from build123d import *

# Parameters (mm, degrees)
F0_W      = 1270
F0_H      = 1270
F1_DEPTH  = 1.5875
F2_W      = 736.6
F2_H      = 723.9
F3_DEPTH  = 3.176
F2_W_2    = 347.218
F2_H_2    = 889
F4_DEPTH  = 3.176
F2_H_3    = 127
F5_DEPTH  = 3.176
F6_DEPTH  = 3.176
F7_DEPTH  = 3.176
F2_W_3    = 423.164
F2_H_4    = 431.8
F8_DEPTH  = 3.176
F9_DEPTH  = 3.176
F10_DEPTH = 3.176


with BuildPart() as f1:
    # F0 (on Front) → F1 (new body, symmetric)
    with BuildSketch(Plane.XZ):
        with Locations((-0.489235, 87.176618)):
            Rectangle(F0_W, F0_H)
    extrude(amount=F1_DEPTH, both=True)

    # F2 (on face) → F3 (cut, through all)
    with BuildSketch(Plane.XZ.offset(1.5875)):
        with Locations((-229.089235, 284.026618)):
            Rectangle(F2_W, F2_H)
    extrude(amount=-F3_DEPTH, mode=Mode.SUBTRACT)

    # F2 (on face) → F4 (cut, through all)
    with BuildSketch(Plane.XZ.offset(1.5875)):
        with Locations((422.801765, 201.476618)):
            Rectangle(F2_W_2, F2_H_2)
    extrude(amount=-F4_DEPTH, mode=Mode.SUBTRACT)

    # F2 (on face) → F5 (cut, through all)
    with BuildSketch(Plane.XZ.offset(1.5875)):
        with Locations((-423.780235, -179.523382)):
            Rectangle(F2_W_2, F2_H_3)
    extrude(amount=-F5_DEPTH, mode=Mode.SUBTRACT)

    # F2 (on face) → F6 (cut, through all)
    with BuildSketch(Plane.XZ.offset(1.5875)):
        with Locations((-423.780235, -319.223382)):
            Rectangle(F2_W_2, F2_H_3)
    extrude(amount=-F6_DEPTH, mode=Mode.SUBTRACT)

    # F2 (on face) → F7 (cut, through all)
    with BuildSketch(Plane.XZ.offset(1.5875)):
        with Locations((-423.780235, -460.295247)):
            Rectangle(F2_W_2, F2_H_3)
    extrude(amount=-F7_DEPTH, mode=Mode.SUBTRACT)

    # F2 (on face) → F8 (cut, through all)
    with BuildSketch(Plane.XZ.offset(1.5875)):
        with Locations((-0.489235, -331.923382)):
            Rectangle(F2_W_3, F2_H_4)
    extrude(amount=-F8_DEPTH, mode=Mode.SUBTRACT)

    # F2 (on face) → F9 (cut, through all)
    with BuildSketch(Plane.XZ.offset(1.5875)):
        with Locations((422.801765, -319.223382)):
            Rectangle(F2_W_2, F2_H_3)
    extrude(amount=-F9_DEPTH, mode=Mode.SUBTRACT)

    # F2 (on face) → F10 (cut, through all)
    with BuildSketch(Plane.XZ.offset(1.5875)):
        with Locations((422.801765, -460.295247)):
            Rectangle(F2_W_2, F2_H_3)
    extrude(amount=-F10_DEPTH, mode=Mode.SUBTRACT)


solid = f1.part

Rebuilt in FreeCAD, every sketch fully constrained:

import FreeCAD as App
import Part
import Sketcher
Q = App.Units.Quantity


def add_polygon(sketch, points):
    """Adds a closed chain of lines whose ends are joined by coincident constraints."""
    first, n = sketch.GeometryCount, len(points)
    for a, b in zip(points, points[1:] + points[:1]):
        sketch.addGeometry(Part.LineSegment(App.Vector(*a, 0), App.Vector(*b, 0)), False)
    for i in range(n):
        sketch.addConstraint(Sketcher.Constraint("Coincident", first + i, 2, first + (i + 1) % n, 1))

doc = App.newDocument("Part")
body = doc.addObject("PartDesign::Body", "Body")

# Sketch on XZ plane
sketch1 = body.newObject("Sketcher::SketchObject", "Sketch")
sketch1.AttachmentSupport = (doc.getObject("XZ_Plane"), [""])
sketch1.MapMode = "FlatFace"
add_polygon(sketch1, [(-635.489235, 722.176618), (-635.489235, -547.823382), (634.510765, -547.823382), (634.510765, 722.176618)])  # lines 0-3
sketch1.addConstraint([
    Sketcher.Constraint("Vertical", 0),
    Sketcher.Constraint("Horizontal", 1),
    Sketcher.Constraint("Vertical", 2),
    Sketcher.Constraint("Horizontal", 3),
    Sketcher.Constraint("Equal", 3, 0),
    Sketcher.Constraint("DistanceX", 1, 1, 1, 2, Q("50 in")),
    Sketcher.Constraint("DistanceY", 0, 2, -1, 1, 547.823382),
    Sketcher.Constraint("DistanceX", 0, 2, -1, 1, 635.489235),
])
pad1 = body.newObject("PartDesign::Pad", "Pad")
pad1.Profile = sketch1
pad1.Length = Q("0.125 in")
pad1.Midplane = True

# Sketch on XZ plane
sketch2 = body.newObject("Sketcher::SketchObject", "Sketch001")
sketch2.AttachmentSupport = (doc.getObject("XZ_Plane"), [""])
sketch2.MapMode = "FlatFace"
sketch2.AttachmentOffset = App.Placement(App.Vector(0, 0, 0.0625 * 25.4), App.Rotation())
add_polygon(sketch2, [(-597.389235, 645.976618), (-597.389235, -77.923382), (139.210765, -77.923382), (139.210765, 645.976618)])  # lines 0-3
sketch2.addConstraint([
    Sketcher.Constraint("Vertical", 0),
    Sketcher.Constraint("Horizontal", 1),
    Sketcher.Constraint("Vertical", 2),
    Sketcher.Constraint("Horizontal", 3),
    Sketcher.Constraint("DistanceX", 1, 1, 1, 2, Q("29 in")),
    Sketcher.Constraint("DistanceY", 0, 2, 0, 1, Q("28.5 in")),
    Sketcher.Constraint("DistanceY", -1, 1, 2, 2, 645.976618),
    Sketcher.Constraint("DistanceX", 0, 2, -1, 1, 597.389235),
])
pocket1 = body.newObject("PartDesign::Pocket", "Pocket")
pocket1.Profile = sketch2
pocket1.Type = "ThroughAll"

# Sketch on XZ plane
sketch3 = body.newObject("Sketcher::SketchObject", "Sketch002")
sketch3.AttachmentSupport = (doc.getObject("XZ_Plane"), [""])
sketch3.MapMode = "FlatFace"
sketch3.AttachmentOffset = App.Placement(App.Vector(0, 0, 0.0625 * 25.4), App.Rotation())
add_polygon(sketch3, [(249.192765, 645.976618), (249.192765, -243.023382), (596.410765, -243.023382), (596.410765, 645.976618)])  # lines 0-3
sketch3.addConstraint([
    Sketcher.Constraint("Vertical", 0),
    Sketcher.Constraint("Horizontal", 1),
    Sketcher.Constraint("Vertical", 2),
    Sketcher.Constraint("Horizontal", 3),
    Sketcher.Constraint("DistanceY", 0, 2, 0, 1, Q("35 in")),
    Sketcher.Constraint("DistanceX", 1, 1, 1, 2, Q("13.67 in")),
    Sketcher.Constraint("DistanceY", 0, 2, -1, 1, 243.023382),
    Sketcher.Constraint("DistanceX", -1, 1, 0, 2, 249.192765),
])
pocket2 = body.newObject("PartDesign::Pocket", "Pocket001")
pocket2.Profile = sketch3
pocket2.Type = "ThroughAll"

# Sketch on XZ plane
sketch4 = body.newObject("Sketcher::SketchObject", "Sketch003")
sketch4.AttachmentSupport = (doc.getObject("XZ_Plane"), [""])
sketch4.MapMode = "FlatFace"
sketch4.AttachmentOffset = App.Placement(App.Vector(0, 0, 0.0625 * 25.4), App.Rotation())
add_polygon(sketch4, [(-597.389235, -116.023382), (-597.389235, -243.023382), (-250.171235, -243.023382), (-250.171235, -116.023382)])  # lines 0-3
sketch4.addConstraint([
    Sketcher.Constraint("Vertical", 0),
    Sketcher.Constraint("Horizontal", 1),
    Sketcher.Constraint("Vertical", 2),
    Sketcher.Constraint("Horizontal", 3),
    Sketcher.Constraint("DistanceY", 0, 2, 0, 1, Q("5 in")),
    Sketcher.Constraint("DistanceX", 1, 1, 1, 2, Q("13.67 in")),
    Sketcher.Constraint("DistanceY", 0, 2, -1, 1, 243.023382),
    Sketcher.Constraint("DistanceX", 0, 2, -1, 1, 597.389235),
])
pocket3 = body.newObject("PartDesign::Pocket", "Pocket002")
pocket3.Profile = sketch4
pocket3.Type = "ThroughAll"

# Sketch on XZ plane
sketch5 = body.newObject("Sketcher::SketchObject", "Sketch004")
sketch5.AttachmentSupport = (doc.getObject("XZ_Plane"), [""])
sketch5.MapMode = "FlatFace"
sketch5.AttachmentOffset = App.Placement(App.Vector(0, 0, 0.0625 * 25.4), App.Rotation())
add_polygon(sketch5, [(-597.389235, -255.723382), (-597.389235, -382.723382), (-250.171235, -382.723382), (-250.171235, -255.723382)])  # lines 0-3
sketch5.addConstraint([
    Sketcher.Constraint("Vertical", 0),
    Sketcher.Constraint("Horizontal", 1),
    Sketcher.Constraint("Vertical", 2),
    Sketcher.Constraint("Horizontal", 3),
    Sketcher.Constraint("DistanceY", 0, 2, 0, 1, Q("5 in")),
    Sketcher.Constraint("DistanceX", 1, 1, 1, 2, Q("13.67 in")),
    Sketcher.Constraint("DistanceY", 0, 2, -1, 1, 382.723382),
    Sketcher.Constraint("DistanceX", 0, 2, -1, 1, 597.389235),
])
pocket4 = body.newObject("PartDesign::Pocket", "Pocket003")
pocket4.Profile = sketch5
pocket4.Type = "ThroughAll"

# Sketch on XZ plane
sketch6 = body.newObject("Sketcher::SketchObject", "Sketch005")
sketch6.AttachmentSupport = (doc.getObject("XZ_Plane"), [""])
sketch6.MapMode = "FlatFace"
sketch6.AttachmentOffset = App.Placement(App.Vector(0, 0, 0.0625 * 25.4), App.Rotation())
add_polygon(sketch6, [(-597.389235, -396.795247), (-597.389235, -523.795247), (-250.171235, -523.795247), (-250.171235, -396.795247)])  # lines 0-3
sketch6.addConstraint([
    Sketcher.Constraint("Vertical", 0),
    Sketcher.Constraint("Horizontal", 1),
    Sketcher.Constraint("Vertical", 2),
    Sketcher.Constraint("Horizontal", 3),
    Sketcher.Constraint("DistanceY", 0, 2, 0, 1, Q("5 in")),
    Sketcher.Constraint("DistanceX", 1, 1, 1, 2, Q("13.67 in")),
    Sketcher.Constraint("DistanceX", 0, 2, -1, 1, 597.389235),
    Sketcher.Constraint("DistanceY", 0, 2, -1, 1, 523.795247),
])
pocket5 = body.newObject("PartDesign::Pocket", "Pocket004")
pocket5.Profile = sketch6
pocket5.Type = "ThroughAll"

# Sketch on XZ plane
sketch7 = body.newObject("Sketcher::SketchObject", "Sketch006")
sketch7.AttachmentSupport = (doc.getObject("XZ_Plane"), [""])
sketch7.MapMode = "FlatFace"
sketch7.AttachmentOffset = App.Placement(App.Vector(0, 0, 0.0625 * 25.4), App.Rotation())
add_polygon(sketch7, [(-212.071235, -116.023382), (-212.071235, -547.823382), (211.092765, -547.823382), (211.092765, -116.023382)])  # lines 0-3
sketch7.addConstraint([
    Sketcher.Constraint("Vertical", 0),
    Sketcher.Constraint("Horizontal", 1),
    Sketcher.Constraint("Vertical", 2),
    Sketcher.Constraint("Horizontal", 3),
    Sketcher.Constraint("DistanceY", 0, 2, 0, 1, Q("17 in")),
    Sketcher.Constraint("DistanceX", 1, 1, 1, 2, Q("16.66 in")),
    Sketcher.Constraint("DistanceY", 0, 2, -1, 1, 547.823382),
    Sketcher.Constraint("DistanceX", 0, 2, -1, 1, 212.071235),
])
pocket6 = body.newObject("PartDesign::Pocket", "Pocket005")
pocket6.Profile = sketch7
pocket6.Type = "ThroughAll"

# Sketch on XZ plane
sketch8 = body.newObject("Sketcher::SketchObject", "Sketch007")
sketch8.AttachmentSupport = (doc.getObject("XZ_Plane"), [""])
sketch8.MapMode = "FlatFace"
sketch8.AttachmentOffset = App.Placement(App.Vector(0, 0, 0.0625 * 25.4), App.Rotation())
add_polygon(sketch8, [(249.192765, -255.723382), (249.192765, -382.723382), (596.410765, -382.723382), (596.410765, -255.723382)])  # lines 0-3
sketch8.addConstraint([
    Sketcher.Constraint("Vertical", 0),
    Sketcher.Constraint("Horizontal", 1),
    Sketcher.Constraint("Vertical", 2),
    Sketcher.Constraint("Horizontal", 3),
    Sketcher.Constraint("DistanceY", 0, 2, 0, 1, Q("5 in")),
    Sketcher.Constraint("DistanceX", 1, 1, 1, 2, Q("13.67 in")),
    Sketcher.Constraint("DistanceY", 0, 2, -1, 1, 382.723382),
    Sketcher.Constraint("DistanceX", -1, 1, 0, 2, 249.192765),
])
pocket7 = body.newObject("PartDesign::Pocket", "Pocket006")
pocket7.Profile = sketch8
pocket7.Type = "ThroughAll"

# Sketch on XZ plane
sketch9 = body.newObject("Sketcher::SketchObject", "Sketch008")
sketch9.AttachmentSupport = (doc.getObject("XZ_Plane"), [""])
sketch9.MapMode = "FlatFace"
sketch9.AttachmentOffset = App.Placement(App.Vector(0, 0, 0.0625 * 25.4), App.Rotation())
add_polygon(sketch9, [(249.192765, -396.795247), (249.192765, -523.795247), (596.410765, -523.795247), (596.410765, -396.795247)])  # lines 0-3
sketch9.addConstraint([
    Sketcher.Constraint("Vertical", 0),
    Sketcher.Constraint("Horizontal", 1),
    Sketcher.Constraint("Vertical", 2),
    Sketcher.Constraint("Horizontal", 3),
    Sketcher.Constraint("DistanceY", 0, 2, 0, 1, Q("5 in")),
    Sketcher.Constraint("DistanceX", 1, 1, 1, 2, Q("13.67 in")),
    Sketcher.Constraint("DistanceX", -1, 1, 0, 2, 249.192765),
    Sketcher.Constraint("DistanceY", 0, 2, -1, 1, 523.795247),
])
pocket8 = body.newObject("PartDesign::Pocket", "Pocket007")
pocket8.Profile = sketch9
pocket8.Type = "ThroughAll"

doc.recompute()
